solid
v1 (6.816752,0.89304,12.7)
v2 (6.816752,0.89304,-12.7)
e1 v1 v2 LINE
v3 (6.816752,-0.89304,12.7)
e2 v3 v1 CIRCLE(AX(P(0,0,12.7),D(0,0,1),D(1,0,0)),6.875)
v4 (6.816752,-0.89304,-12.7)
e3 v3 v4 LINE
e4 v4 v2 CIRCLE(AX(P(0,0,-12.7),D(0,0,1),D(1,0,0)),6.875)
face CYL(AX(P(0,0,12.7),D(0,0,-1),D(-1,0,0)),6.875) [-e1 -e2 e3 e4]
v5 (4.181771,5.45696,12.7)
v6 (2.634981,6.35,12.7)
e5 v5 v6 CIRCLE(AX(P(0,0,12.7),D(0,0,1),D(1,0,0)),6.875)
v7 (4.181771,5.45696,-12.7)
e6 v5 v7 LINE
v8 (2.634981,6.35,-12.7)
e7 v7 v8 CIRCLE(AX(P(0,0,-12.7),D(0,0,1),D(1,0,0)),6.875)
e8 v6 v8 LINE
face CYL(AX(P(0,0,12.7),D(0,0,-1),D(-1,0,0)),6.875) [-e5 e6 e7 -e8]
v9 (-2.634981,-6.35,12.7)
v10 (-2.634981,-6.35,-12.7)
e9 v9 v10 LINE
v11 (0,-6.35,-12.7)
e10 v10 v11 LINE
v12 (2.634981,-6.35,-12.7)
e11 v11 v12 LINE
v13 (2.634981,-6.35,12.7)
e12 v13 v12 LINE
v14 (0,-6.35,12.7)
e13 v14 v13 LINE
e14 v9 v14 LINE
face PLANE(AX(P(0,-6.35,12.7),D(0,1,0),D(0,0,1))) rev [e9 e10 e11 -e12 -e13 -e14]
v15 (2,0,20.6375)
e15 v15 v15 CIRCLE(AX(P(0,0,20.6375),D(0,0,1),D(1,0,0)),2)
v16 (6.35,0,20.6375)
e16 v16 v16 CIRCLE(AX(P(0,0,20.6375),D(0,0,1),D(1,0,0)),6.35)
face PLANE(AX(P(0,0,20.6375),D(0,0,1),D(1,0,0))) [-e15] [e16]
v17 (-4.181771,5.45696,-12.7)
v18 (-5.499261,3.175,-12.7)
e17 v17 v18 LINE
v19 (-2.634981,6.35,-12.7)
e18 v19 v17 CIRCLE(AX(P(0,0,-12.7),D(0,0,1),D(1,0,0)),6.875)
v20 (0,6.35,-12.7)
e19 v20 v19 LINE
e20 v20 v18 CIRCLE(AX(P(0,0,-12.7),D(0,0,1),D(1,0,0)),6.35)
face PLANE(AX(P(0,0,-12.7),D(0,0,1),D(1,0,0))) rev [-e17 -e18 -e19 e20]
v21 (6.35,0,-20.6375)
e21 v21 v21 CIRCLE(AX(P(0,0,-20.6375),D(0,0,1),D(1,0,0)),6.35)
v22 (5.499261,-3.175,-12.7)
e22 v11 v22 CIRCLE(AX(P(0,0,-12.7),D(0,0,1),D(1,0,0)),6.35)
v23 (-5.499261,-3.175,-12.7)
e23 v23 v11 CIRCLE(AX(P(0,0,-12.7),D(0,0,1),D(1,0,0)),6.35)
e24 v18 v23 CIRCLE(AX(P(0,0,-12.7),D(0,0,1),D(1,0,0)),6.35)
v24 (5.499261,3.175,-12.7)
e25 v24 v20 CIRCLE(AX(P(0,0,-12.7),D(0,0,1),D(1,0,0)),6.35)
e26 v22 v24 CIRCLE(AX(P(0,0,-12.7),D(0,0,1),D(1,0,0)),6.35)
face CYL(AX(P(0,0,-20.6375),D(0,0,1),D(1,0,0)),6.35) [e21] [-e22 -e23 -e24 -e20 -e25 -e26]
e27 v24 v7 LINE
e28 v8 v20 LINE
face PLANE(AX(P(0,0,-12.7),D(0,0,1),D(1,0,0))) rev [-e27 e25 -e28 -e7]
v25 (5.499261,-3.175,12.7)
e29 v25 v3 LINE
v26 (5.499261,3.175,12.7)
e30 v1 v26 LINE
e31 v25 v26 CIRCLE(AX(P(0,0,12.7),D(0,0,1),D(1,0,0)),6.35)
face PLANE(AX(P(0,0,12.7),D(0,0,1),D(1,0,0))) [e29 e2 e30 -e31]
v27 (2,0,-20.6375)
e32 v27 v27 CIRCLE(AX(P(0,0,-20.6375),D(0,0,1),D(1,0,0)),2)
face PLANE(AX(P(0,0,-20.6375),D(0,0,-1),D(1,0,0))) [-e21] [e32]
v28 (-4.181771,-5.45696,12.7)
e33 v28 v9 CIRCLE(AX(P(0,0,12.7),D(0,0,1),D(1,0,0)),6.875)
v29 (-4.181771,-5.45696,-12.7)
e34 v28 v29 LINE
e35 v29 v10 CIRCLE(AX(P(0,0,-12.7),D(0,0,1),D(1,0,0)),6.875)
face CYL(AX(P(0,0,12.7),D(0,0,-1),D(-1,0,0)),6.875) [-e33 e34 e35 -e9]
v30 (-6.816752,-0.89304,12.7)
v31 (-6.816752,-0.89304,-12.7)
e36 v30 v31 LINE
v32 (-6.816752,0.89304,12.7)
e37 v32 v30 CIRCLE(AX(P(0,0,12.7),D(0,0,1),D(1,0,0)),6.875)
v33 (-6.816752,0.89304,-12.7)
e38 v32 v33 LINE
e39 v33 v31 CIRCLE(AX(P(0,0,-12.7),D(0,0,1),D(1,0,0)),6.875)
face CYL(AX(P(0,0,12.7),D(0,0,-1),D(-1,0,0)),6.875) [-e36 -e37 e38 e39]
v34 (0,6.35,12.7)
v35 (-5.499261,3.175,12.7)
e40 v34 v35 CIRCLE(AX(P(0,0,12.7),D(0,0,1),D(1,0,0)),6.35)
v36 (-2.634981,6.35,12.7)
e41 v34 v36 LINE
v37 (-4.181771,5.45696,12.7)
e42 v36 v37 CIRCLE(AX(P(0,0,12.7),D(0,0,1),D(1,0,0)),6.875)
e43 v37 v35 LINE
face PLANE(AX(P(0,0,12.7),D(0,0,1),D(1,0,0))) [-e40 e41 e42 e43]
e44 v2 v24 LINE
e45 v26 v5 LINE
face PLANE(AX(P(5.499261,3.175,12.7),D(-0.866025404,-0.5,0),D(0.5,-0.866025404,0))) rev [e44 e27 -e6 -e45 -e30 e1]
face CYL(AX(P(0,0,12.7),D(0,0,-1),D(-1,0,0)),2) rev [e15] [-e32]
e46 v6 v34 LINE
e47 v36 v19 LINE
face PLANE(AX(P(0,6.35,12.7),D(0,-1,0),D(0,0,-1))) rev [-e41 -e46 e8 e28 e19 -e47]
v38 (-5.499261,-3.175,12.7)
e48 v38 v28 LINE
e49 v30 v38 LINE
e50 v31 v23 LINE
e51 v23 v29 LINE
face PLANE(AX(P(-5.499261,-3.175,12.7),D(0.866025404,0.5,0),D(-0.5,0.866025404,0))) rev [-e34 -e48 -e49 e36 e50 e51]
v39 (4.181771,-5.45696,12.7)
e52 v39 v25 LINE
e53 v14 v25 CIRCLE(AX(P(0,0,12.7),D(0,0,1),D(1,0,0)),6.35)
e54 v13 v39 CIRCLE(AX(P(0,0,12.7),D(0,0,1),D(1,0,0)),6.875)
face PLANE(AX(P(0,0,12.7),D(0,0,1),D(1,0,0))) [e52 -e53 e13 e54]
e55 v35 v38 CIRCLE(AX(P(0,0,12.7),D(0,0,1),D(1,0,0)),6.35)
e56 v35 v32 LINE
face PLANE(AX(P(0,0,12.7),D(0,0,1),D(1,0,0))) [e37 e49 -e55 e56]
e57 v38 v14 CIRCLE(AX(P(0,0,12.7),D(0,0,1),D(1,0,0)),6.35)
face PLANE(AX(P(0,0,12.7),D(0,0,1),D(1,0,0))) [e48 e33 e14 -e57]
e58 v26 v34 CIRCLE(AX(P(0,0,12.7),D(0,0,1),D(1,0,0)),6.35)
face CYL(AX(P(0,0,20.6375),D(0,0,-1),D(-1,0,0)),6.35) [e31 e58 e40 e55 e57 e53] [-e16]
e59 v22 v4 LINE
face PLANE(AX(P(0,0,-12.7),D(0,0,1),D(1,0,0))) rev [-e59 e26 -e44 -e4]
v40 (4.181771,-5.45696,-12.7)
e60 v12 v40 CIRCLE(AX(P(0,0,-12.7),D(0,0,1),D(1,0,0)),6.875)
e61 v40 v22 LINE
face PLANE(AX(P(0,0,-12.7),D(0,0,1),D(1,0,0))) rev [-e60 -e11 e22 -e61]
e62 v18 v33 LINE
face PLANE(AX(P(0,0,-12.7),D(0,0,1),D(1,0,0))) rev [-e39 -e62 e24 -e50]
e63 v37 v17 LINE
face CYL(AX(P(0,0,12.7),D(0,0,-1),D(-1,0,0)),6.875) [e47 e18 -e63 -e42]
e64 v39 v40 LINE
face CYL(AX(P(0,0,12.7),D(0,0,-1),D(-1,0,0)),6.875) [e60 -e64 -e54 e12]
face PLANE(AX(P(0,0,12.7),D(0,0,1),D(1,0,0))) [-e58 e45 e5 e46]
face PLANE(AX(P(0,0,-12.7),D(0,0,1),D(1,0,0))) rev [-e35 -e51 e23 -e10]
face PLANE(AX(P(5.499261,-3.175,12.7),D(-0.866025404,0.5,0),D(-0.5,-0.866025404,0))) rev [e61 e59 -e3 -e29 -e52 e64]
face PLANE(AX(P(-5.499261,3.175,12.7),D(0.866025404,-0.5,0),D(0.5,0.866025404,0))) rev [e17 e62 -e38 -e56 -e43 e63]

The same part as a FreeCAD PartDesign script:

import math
import FreeCAD as App
import Part
import Sketcher

V = App.Vector
Q = App.Units.Quantity

doc = App.newDocument("Part")
body = doc.addObject("PartDesign::Body", "Body")

# Sketch on XY plane
sketch1 = body.newObject("Sketcher::SketchObject", "Sketch")
sketch1.AttachmentSupport = (doc.getObject("XY_Plane"), [""])
sketch1.MapMode = "FlatFace"
sketch1.addGeometry([
    Part.ArcOfCircle(Part.Circle(V(0, 0, 0), V(0, 0, 1), 6.875), math.radians(52.536379), math.radians(67.463621)),  # 0
    Part.LineSegment(V(2.634981, 6.35, 0), V(-2.634981, 6.35, 0)),  # 1
    Part.ArcOfCircle(Part.Circle(V(0, 0, 0), V(0, 0, 1), 6.875), math.radians(112.536379), math.radians(127.463621)),  # 2
    Part.LineSegment(V(-4.181771, 5.45696, 0), V(-6.816752, 0.89304, 0)),  # 3
    Part.ArcOfCircle(Part.Circle(V(0, 0, 0), V(0, 0, 1), 6.875), math.radians(172.536379), math.radians(187.463621)),  # 4
    Part.LineSegment(V(-6.816752, -0.89304, 0), V(-4.181771, -5.45696, 0)),  # 5
    Part.ArcOfCircle(Part.Circle(V(0, 0, 0), V(0, 0, 1), 6.875), math.radians(-127.463621), math.radians(-112.536379)),  # 6
    Part.LineSegment(V(-2.634981, -6.35, 0), V(2.634981, -6.35, 0)),  # 7
    Part.ArcOfCircle(Part.Circle(V(0, 0, 0), V(0, 0, 1), 6.875), math.radians(-67.463621), math.radians(-52.536379)),  # 8
    Part.LineSegment(V(4.181771, -5.45696, 0), V(6.816752, -0.89304, 0)),  # 9
    Part.ArcOfCircle(Part.Circle(V(0, 0, 0), V(0, 0, 1), 6.875), math.radians(-7.463621), math.radians(0)),  # 10
    Part.ArcOfCircle(Part.Circle(V(0, 0, 0), V(0, 0, 1), 6.875), math.radians(0), math.radians(7.463621)),  # 11
    Part.LineSegment(V(6.816752, 0.89304, 0), V(4.181771, 5.45696, 0)),  # 12
    Part.Circle(V(0, 0, 0), V(0, 0, 1), 2),  # 13
], False)
sketch1.addConstraint([
    Sketcher.Constraint("Coincident", 0, 2, 1, 1),
    Sketcher.Constraint("Coincident", 1, 2, 2, 1),
    Sketcher.Constraint("Coincident", 2, 2, 3, 1),
    Sketcher.Constraint("Coincident", 3, 2, 4, 1),
    Sketcher.Constraint("Coincident", 4, 2, 5, 1),
    Sketcher.Constraint("Coincident", 5, 2, 6, 1),
    Sketcher.Constraint("Coincident", 6, 2, 7, 1),
    Sketcher.Constraint("Coincident", 7, 2, 8, 1),
    Sketcher.Constraint("Coincident", 8, 2, 9, 1),
    Sketcher.Constraint("Coincident", 9, 2, 10, 1),
    Sketcher.Constraint("Tangent", 10, 2, 11, 1),
    Sketcher.Constraint("Coincident", 11, 2, 12, 1),
    Sketcher.Constraint("Coincident", 12, 2, 0, 1),
    Sketcher.Constraint("Horizontal", 1),
    Sketcher.Constraint("Horizontal", 7),
    Sketcher.Constraint("Coincident", 0, 3, -1, 1),
    Sketcher.Constraint("Coincident", 2, 3, -1, 1),
    Sketcher.Constraint("Coincident", 4, 3, -1, 1),
    Sketcher.Constraint("Coincident", 6, 3, -1, 1),
    Sketcher.Constraint("Coincident", 8, 3, -1, 1),
    Sketcher.Constraint("Coincident", 10, 3, -1, 1),
    Sketcher.Constraint("Coincident", 13, 3, -1, 1),
    Sketcher.Constraint("Equal", 0, 2),
    Sketcher.Constraint("Equal", 2, 4),
    Sketcher.Constraint("Equal", 4, 6),
    Sketcher.Constraint("Equal", 6, 8),
    Sketcher.Constraint("Equal", 8, 10),
    Sketcher.Constraint("Equal", 10, 11),
    Sketcher.Constraint("PointOnObject", 10, 2, -1),
    Sketcher.Constraint("Parallel", 3, 9),
    Sketcher.Constraint("Parallel", 5, 12),
    Sketcher.Constraint("Horizontal", 5, 2, 8, 2),
    Sketcher.Constraint("Horizontal", 4, 2, 9, 2),
    Sketcher.Constraint("Horizontal", 3, 2, 11, 2),
    Sketcher.Constraint("Vertical", 3, 2, 4, 2),
    Sketcher.Constraint("Vertical", 1, 2, 6, 2),
    Sketcher.Constraint("Angle", 3, Q("-120 deg")),
    Sketcher.Constraint("Diameter", 13, Q("4 mm")),
    Sketcher.Constraint("DistanceY", -1, 1, 0, 2, Q("0.25 in")),
    Sketcher.Constraint("Radius", 0, Q("6.875 mm")),
    Sketcher.Constraint("Distance", 3, Q("5.269962 mm")),
])
pad1 = body.newObject("PartDesign::Pad", "Pad")
pad1.Profile = sketch1
pad1.Length = Q("1 in")
pad1.Midplane = True

# Sketch on XY plane
sketch2 = body.newObject("Sketcher::SketchObject", "Sketch001")
sketch2.AttachmentSupport = (doc.getObject("XY_Plane"), [""])
sketch2.MapMode = "FlatFace"
sketch2.AttachmentOffset = App.Placement(V(0, 0, 0.5 * 25.4), App.Rotation())
sketch2.addGeometry([
    Part.Circle(V(0, 0, 0), V(0, 0, 1), 6.35),
    Part.Circle(V(0, 0, 0), V(0, 0, 1), 2),
], False)
sketch2.addConstraint([
    Sketcher.Constraint("Coincident", 0, 3, -1, 1),
    Sketcher.Constraint("Coincident", 1, 3, -1, 1),
    Sketcher.Constraint("Diameter", 0, Q("0.5 in")),
    Sketcher.Constraint("Diameter", 1, Q("4 mm")),
])
pad2 = body.newObject("PartDesign::Pad", "Pad001")
pad2.Profile = sketch2
pad2.Length = Q("0.3125 in")
doc.recompute()

mirrored = body.newObject("PartDesign::Mirrored", "Mirrored")
mirrored.Originals = [pad2]
mirrored.MirrorPlane = (doc.getObject("XY_Plane"), [""])
body.Tip = mirrored

doc.recompute()
